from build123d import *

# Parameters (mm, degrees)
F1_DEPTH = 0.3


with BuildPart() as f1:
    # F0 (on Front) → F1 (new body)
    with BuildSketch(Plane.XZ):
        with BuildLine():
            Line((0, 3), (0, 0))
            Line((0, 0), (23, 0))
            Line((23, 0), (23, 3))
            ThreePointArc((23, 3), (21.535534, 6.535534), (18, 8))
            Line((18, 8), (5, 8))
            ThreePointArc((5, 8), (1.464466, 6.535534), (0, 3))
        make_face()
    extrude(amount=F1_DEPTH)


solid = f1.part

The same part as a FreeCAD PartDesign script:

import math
import FreeCAD as App
import Part
import Sketcher
Q = App.Units.Quantity

doc = App.newDocument("Part")
body = doc.addObject("PartDesign::Body", "Body")

# Sketch on XZ plane
sketch1 = doc.addObject("Sketcher::SketchObject", "Sketch")
body.addObject(sketch1)
sketch1.AttachmentSupport = (doc.XZ_Plane, [""])
sketch1.MapMode = "FlatFace"
sketch1.addGeometry([
    Part.LineSegment(App.Vector(0, 3, 0), App.Vector(0, 0, 0)),  # 0
    Part.LineSegment(App.Vector(0, 0, 0), App.Vector(23, 0, 0)),  # 1
    Part.LineSegment(App.Vector(23, 0, 0), App.Vector(23, 3, 0)),  # 2
    Part.ArcOfCircle(Part.Circle(App.Vector(18, 3, 0), App.Vector(0, 0, 1), 5), math.radians(-0.000004), math.radians(90.000004)),  # 3
    Part.LineSegment(App.Vector(18, 8, 0), App.Vector(5, 8, 0)),  # 4
    Part.ArcOfCircle(Part.Circle(App.Vector(5, 3, 0), App.Vector(0, 0, 1), 5), math.radians(89.999996), math.radians(180.000004)),  # 5
], False)
sketch1.addConstraint([
    Sketcher.Constraint("Coincident", 0, 2, 1, 1),
    Sketcher.Constraint("Coincident", 1, 2, 2, 1),
    Sketcher.Constraint("Tangent", 2, 2, 3, 1),
    Sketcher.Constraint("Tangent", 3, 2, 4, 1),
    Sketcher.Constraint("Tangent", 4, 2, 5, 1),
    Sketcher.Constraint("Tangent", 5, 2, 0, 1),
    Sketcher.Constraint("Vertical", 0),
    Sketcher.Constraint("Horizontal", 1),
    Sketcher.Constraint("Vertical", 2),
    Sketcher.Constraint("Horizontal", 4),
    Sketcher.Constraint("Coincident", 0, 2, -1, 1),
    Sketcher.Constraint("Equal", 3, 5),
    Sketcher.Constraint("Radius", 3, Q("5 mm")),
    Sketcher.Constraint("DistanceX", 1, 1, 1, 2, Q("23 mm")),
    Sketcher.Constraint("DistanceY", 0, 2, 0, 1, Q("3 mm")),
])
pad1 = doc.addObject("PartDesign::Pad", "Pad")
body.addObject(pad1)
pad1.Profile = sketch1
pad1.Length = 0.3

doc.recompute()
